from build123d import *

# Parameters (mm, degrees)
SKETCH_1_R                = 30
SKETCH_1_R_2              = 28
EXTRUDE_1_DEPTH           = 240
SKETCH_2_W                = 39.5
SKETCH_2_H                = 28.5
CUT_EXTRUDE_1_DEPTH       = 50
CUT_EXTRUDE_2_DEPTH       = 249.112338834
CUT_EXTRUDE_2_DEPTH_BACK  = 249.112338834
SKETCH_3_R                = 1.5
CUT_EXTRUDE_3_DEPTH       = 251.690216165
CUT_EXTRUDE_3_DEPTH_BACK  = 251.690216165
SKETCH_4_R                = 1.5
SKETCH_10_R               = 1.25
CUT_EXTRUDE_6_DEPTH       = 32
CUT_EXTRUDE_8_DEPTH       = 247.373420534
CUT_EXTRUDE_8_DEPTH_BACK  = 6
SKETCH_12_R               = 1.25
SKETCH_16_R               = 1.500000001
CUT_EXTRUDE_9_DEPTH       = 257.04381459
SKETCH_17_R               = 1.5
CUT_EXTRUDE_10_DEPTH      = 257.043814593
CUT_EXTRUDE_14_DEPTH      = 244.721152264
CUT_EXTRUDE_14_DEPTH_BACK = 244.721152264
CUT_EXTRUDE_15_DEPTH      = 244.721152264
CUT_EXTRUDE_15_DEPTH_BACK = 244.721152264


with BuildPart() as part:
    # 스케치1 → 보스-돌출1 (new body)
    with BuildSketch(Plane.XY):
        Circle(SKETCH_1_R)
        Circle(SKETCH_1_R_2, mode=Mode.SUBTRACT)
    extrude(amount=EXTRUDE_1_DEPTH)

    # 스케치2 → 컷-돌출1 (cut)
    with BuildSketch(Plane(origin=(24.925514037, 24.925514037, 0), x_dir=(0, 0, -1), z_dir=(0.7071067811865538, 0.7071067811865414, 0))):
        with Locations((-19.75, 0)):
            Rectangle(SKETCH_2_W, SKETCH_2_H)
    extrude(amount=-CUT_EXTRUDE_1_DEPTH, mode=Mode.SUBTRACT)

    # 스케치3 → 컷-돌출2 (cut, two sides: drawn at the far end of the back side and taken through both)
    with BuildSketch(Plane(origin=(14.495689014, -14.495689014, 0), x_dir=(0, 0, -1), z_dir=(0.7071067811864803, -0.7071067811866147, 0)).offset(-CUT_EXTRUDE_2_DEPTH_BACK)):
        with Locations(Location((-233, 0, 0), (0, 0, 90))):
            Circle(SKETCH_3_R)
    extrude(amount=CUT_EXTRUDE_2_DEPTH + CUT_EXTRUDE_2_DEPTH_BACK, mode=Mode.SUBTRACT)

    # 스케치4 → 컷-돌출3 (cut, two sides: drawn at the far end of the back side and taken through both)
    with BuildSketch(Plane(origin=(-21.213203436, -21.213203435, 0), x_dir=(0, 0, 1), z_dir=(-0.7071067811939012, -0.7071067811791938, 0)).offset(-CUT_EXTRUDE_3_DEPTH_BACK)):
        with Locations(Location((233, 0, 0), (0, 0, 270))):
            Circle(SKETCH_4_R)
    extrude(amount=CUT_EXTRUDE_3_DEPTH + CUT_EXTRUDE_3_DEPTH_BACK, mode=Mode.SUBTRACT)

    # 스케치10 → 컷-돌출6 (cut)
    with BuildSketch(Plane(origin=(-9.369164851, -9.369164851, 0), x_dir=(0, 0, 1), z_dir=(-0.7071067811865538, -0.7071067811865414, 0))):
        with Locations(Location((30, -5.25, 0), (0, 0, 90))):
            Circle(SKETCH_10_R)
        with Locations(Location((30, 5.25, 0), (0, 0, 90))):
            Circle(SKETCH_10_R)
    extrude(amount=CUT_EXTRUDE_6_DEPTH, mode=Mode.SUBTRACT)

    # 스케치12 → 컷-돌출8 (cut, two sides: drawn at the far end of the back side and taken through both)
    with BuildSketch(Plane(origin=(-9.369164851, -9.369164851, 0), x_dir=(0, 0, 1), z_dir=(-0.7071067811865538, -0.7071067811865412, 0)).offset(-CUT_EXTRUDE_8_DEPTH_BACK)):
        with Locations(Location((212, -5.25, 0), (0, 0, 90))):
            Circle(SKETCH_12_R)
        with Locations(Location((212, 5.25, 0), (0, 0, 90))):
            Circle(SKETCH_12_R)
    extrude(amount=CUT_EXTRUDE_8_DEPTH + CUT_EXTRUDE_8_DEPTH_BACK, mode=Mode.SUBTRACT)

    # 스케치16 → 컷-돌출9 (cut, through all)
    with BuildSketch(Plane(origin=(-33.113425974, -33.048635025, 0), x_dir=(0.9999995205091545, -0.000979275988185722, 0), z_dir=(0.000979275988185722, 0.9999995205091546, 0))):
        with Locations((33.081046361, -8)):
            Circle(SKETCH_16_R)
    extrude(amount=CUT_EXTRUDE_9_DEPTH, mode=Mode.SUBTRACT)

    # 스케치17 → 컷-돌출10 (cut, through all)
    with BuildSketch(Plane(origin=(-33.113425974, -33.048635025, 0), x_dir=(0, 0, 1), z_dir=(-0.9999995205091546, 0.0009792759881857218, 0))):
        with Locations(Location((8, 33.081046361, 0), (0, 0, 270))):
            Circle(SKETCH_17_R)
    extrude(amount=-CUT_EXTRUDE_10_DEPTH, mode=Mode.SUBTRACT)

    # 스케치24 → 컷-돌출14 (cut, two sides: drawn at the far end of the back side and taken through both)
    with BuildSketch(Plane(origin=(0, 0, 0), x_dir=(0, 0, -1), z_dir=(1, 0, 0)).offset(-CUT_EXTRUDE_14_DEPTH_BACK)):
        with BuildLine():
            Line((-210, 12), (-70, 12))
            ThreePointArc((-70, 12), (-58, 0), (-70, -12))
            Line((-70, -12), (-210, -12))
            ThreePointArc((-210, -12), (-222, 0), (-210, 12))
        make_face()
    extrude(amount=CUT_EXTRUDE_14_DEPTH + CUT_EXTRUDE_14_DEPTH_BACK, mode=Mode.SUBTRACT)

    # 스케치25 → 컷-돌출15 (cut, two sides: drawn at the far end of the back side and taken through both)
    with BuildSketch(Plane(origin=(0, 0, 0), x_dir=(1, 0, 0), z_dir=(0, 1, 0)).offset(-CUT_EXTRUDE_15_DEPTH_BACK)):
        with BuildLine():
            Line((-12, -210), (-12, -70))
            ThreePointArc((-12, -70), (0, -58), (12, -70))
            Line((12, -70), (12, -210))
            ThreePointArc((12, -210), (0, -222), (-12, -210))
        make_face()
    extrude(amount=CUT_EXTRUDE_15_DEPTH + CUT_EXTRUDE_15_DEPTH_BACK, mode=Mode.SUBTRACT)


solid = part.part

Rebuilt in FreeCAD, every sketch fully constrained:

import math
import FreeCAD as App
import Part
import Sketcher
Q = App.Units.Quantity

doc = App.newDocument("Part")
params = doc.addObject("Spreadsheet::Sheet", "Params")
for row, (alias, value) in enumerate([
    ("sketch1_diameter", "60 mm"),
    ("sketch1_diameter2", "56 mm"),
    ("pad1_length", "240 mm"),
    ("sketch2_width", "39.5 mm"),
    ("sketch2_height", "28.5 mm"),
    ("pocket1_length", "50 mm"),
    ("sketch3_diameter", "3 mm"),
    ("sketch4_diameter", "3 mm"),
    ("sketch5_diameter", "2.5 mm"),
    ("pocket4_length", "32 mm"),
    ("sketch6_diameter", "2.5 mm"),
    ("pocket5_length", "247.373421 mm"),
    ("pocket5_length2", "6 mm"),
    ("sketch7_diameter", "3 mm"),
    ("sketch8_diameter", "3 mm"),
    ("sketch9_radius", "12 mm"),
    ("sketch9_height", "140 mm"),
    ("sketch10_radius", "12 mm"),
    ("sketch10_height", "140 mm"),
], start=1):
    params.set(f"A{row}", alias)
    params.set(f"B{row}", "=" + value)
    params.setAlias(f"B{row}", alias)

body = doc.addObject("PartDesign::Body", "Body")

sketch1 = body.newObject("Sketcher::SketchObject", "Sketch")
sketch1.AttachmentSupport = (doc.getObject("XY_Plane"), [""])
sketch1.MapMode = "FlatFace"
sketch1.addGeometry(Part.Circle(App.Vector(0, 0, 0), App.Vector(0, 0, 1), 30), False)
sketch1.addGeometry(Part.Circle(App.Vector(0, 0, 0), App.Vector(0, 0, 1), 28), False)
sketch1.addConstraint(Sketcher.Constraint("Coincident", 0, 3, -1, 1))
sketch1.addConstraint(Sketcher.Constraint("Coincident", 1, 3, -1, 1))
sketch1.addConstraint(Sketcher.Constraint("Diameter", 0, Q("60 mm")))
sketch1.addConstraint(Sketcher.Constraint("Diameter", 1, Q("56 mm")))
sketch1.setExpression("Constraints[2]", "Params.sketch1_diameter")
sketch1.setExpression("Constraints[3]", "Params.sketch1_diameter2")
pad1 = body.newObject("PartDesign::Pad", "Pad")
pad1.Profile = sketch1
pad1.setExpression("Length", "Params.pad1_length")

sketch2 = body.newObject("Sketcher::SketchObject", "Sketch001")
sketch2.Placement = App.Placement(App.Vector(24.925514, 24.925514, 0), App.Rotation(App.Vector(0, 0, -1), App.Vector(-0.707106781, 0.707106781, 0), App.Vector(0.707106781, 0.707106781, 0), "ZXY"))
sketch2.addGeometry(Part.LineSegment(App.Vector(-40, 14, 0), App.Vector(-40, -14, 0)), False)
sketch2.addGeometry(Part.LineSegment(App.Vector(-40, -14, 0), App.Vector(0, -14, 0)), False)
sketch2.addGeometry(Part.LineSegment(App.Vector(0, -14, 0), App.Vector(0, 14, 0)), False)
sketch2.addGeometry(Part.LineSegment(App.Vector(0, 14, 0), App.Vector(-40, 14, 0)), False)
sketch2.addConstraint(Sketcher.Constraint("Coincident", 0, 2, 1, 1))
sketch2.addConstraint(Sketcher.Constraint("Coincident", 1, 2, 2, 1))
sketch2.addConstraint(Sketcher.Constraint("Coincident", 2, 2, 3, 1))
sketch2.addConstraint(Sketcher.Constraint("Coincident", 3, 2, 0, 1))
sketch2.addConstraint(Sketcher.Constraint("Vertical", 0))
sketch2.addConstraint(Sketcher.Constraint("Horizontal", 1))
sketch2.addConstraint(Sketcher.Constraint("Vertical", 2))
sketch2.addConstraint(Sketcher.Constraint("Horizontal", 3))
sketch2.addConstraint(Sketcher.Constraint("Symmetric", 1, 2, 2, 2, -1, 1))
sketch2.addConstraint(Sketcher.Constraint("DistanceX", 1, 1, 1, 2, Q("39.5 mm")))
sketch2.addConstraint(Sketcher.Constraint("DistanceY", 0, 2, 0, 1, Q("28.5 mm")))
sketch2.setExpression("Constraints[9]", "Params.sketch2_width")
sketch2.setExpression("Constraints[10]", "Params.sketch2_height")
pocket1 = body.newObject("PartDesign::Pocket", "Pocket")
pocket1.Profile = sketch2
pocket1.setExpression("Length", "Params.pocket1_length")

sketch3 = body.newObject("Sketcher::SketchObject", "Sketch002")
sketch3.Placement = App.Placement(App.Vector(14.495689, -14.495689, 0), App.Rotation(App.Vector(0, 0, -1), App.Vector(0.707106781, 0.707106781, 0), App.Vector(0.707106781, -0.707106781, 0), "ZXY"))
sketch3.addGeometry(Part.Circle(App.Vector(-233, 0, 0), App.Vector(0, 0, 1), 1.5), False)
sketch3.addConstraint(Sketcher.Constraint("PointOnObject", 0, 3, -1))
sketch3.addConstraint(Sketcher.Constraint("Diameter", 0, Q("3 mm")))
sketch3.addConstraint(Sketcher.Constraint("DistanceX", 0, 3, -1, 1, Q("233 mm")))
sketch3.setExpression("Constraints[1]", "Params.sketch3_diameter")
pocket2 = body.newObject("PartDesign::Pocket", "Pocket001")
pocket2.Profile = sketch3
pocket2.Type = "ThroughAll"
pocket2.Midplane = True

sketch4 = body.newObject("Sketcher::SketchObject", "Sketch003")
sketch4.Placement = App.Placement(App.Vector(-21.213203, -21.213203, 0), App.Rotation(App.Vector(0, 0, 1), App.Vector(-0.707106781, 0.707106781, 0), App.Vector(-0.707106781, -0.707106781, 0), "ZXY"))
sketch4.addGeometry(Part.Circle(App.Vector(233, 0, 0), App.Vector(0, 0, 1), 1.5), False)
sketch4.addConstraint(Sketcher.Constraint("PointOnObject", 0, 3, -1))
sketch4.addConstraint(Sketcher.Constraint("Diameter", 0, Q("3 mm")))
sketch4.addConstraint(Sketcher.Constraint("DistanceX", -1, 1, 0, 3, Q("233 mm")))
sketch4.setExpression("Constraints[1]", "Params.sketch4_diameter")
pocket3 = body.newObject("PartDesign::Pocket", "Pocket002")
pocket3.Profile = sketch4
pocket3.Type = "ThroughAll"
pocket3.Midplane = True

sketch5 = body.newObject("Sketcher::SketchObject", "Sketch004")
sketch5.Placement = App.Placement(App.Vector(-9.369165, -9.369165, 0), App.Rotation(App.Vector(0, 0, 1), App.Vector(-0.707106781, 0.707106781, 0), App.Vector(-0.707106781, -0.707106781, 0), "ZXY"))
sketch5.addGeometry(Part.Circle(App.Vector(30, -5.2, 0), App.Vector(0, 0, 1), 1.2), False)
sketch5.addGeometry(Part.Circle(App.Vector(30, 5.2, 0), App.Vector(0, 0, 1), 1.2), False)
sketch5.addConstraint(Sketcher.Constraint("Equal", 0, 1))
sketch5.addConstraint(Sketcher.Constraint("Symmetric", 0, 3, 1, 3, -1))
sketch5.addConstraint(Sketcher.Constraint("Diameter", 0, Q("2.5 mm")))
sketch5.addConstraint(Sketcher.Constraint("DistanceX", -1, 1, 0, 3, Q("30 mm")))
sketch5.addConstraint(Sketcher.Constraint("DistanceY", 0, 3, 1, 3, Q("10.5 mm")))
sketch5.setExpression("Constraints[2]", "Params.sketch5_diameter")
pocket4 = body.newObject("PartDesign::Pocket", "Pocket003")
pocket4.Profile = sketch5
pocket4.setExpression("Length", "Params.pocket4_length")
pocket4.Reversed = True

sketch6 = body.newObject("Sketcher::SketchObject", "Sketch005")
sketch6.Placement = App.Placement(App.Vector(-9.369165, -9.369165, 0), App.Rotation(App.Vector(0, 0, 1), App.Vector(-0.707106781, 0.707106781, 0), App.Vector(-0.707106781, -0.707106781, 0), "ZXY"))
sketch6.addGeometry(Part.Circle(App.Vector(212, -5.2, 0), App.Vector(0, 0, 1), 1.2), False)
sketch6.addGeometry(Part.Circle(App.Vector(212, 5.2, 0), App.Vector(0, 0, 1), 1.2), False)
sketch6.addConstraint(Sketcher.Constraint("Equal", 0, 1))
sketch6.addConstraint(Sketcher.Constraint("Symmetric", 0, 3, 1, 3, -1))
sketch6.addConstraint(Sketcher.Constraint("Diameter", 0, Q("2.5 mm")))
sketch6.addConstraint(Sketcher.Constraint("DistanceX", -1, 1, 0, 3, Q("212 mm")))
sketch6.addConstraint(Sketcher.Constraint("DistanceY", 0, 3, 1, 3, Q("10.5 mm")))
sketch6.setExpression("Constraints[2]", "Params.sketch6_diameter")
pocket5 = body.newObject("PartDesign::Pocket", "Pocket004")
pocket5.Profile = sketch6
pocket5.Type = "TwoLengths"
pocket5.setExpression("Length", "Params.pocket5_length")
pocket5.setExpression("Length2", "Params.pocket5_length2")
pocket5.Reversed = True

sketch7 = body.newObject("Sketcher::SketchObject", "Sketch006")
sketch7.Placement = App.Placement(App.Vector(-33.113426, -33.048635, 0), App.Rotation(App.Vector(0.999999521, -0.000979276, 0), App.Vector(0, 0, -1.000000001), App.Vector(0.000979276, 0.999999521, 0), "ZXY"))
sketch7.addGeometry(Part.Circle(App.Vector(33.1, -8, 0), App.Vector(0, 0, 1), 1.5), False)
sketch7.addConstraint(Sketcher.Constraint("Diameter", 0, Q("3 mm")))
sketch7.addConstraint(Sketcher.Constraint("DistanceY", 0, 3, -1, 1, Q("8 mm")))
sketch7.addConstraint(Sketcher.Constraint("DistanceX", -1, 1, 0, 3, Q("33.081046 mm")))
sketch7.setExpression("Constraints[0]", "Params.sketch7_diameter")
pocket6 = body.newObject("PartDesign::Pocket", "Pocket005")
pocket6.Profile = sketch7
pocket6.Type = "ThroughAll"
pocket6.Reversed = True

sketch8 = body.newObject("Sketcher::SketchObject", "Sketch007")
sketch8.Placement = App.Placement(App.Vector(-33.113426, -33.048635, 0), App.Rotation(App.Vector(0, 0, 1), App.Vector(0.000979276, 0.999999521, 0), App.Vector(-0.999999521, 0.000979276, 0), "ZXY"))
sketch8.addGeometry(Part.Circle(App.Vector(8, 33.1, 0), App.Vector(0, 0, 1), 1.5), False)
sketch8.addConstraint(Sketcher.Constraint("Diameter", 0, Q("3 mm")))
sketch8.addConstraint(Sketcher.Constraint("DistanceX", -1, 1, 0, 3, Q("8 mm")))
sketch8.addConstraint(Sketcher.Constraint("DistanceY", -1, 1, 0, 3, Q("33.081046 mm")))
sketch8.setExpression("Constraints[0]", "Params.sketch8_diameter")
pocket7 = body.newObject("PartDesign::Pocket", "Pocket006")
pocket7.Profile = sketch8
pocket7.Type = "ThroughAll"

sketch9 = body.newObject("Sketcher::SketchObject", "Sketch008")
sketch9.AttachmentSupport = (doc.getObject("YZ_Plane"), [""])
sketch9.MapMode = "FlatFace"
sketch9.addGeometry(Part.LineSegment(App.Vector(12, 70, 0), App.Vector(12, 210, 0)), False)
sketch9.addGeometry(Part.ArcOfCircle(Part.Circle(App.Vector(0, 210, 0), App.Vector(0, 0, 1), 12), math.radians(0), math.radians(180)), False)
sketch9.addGeometry(Part.LineSegment(App.Vector(-12, 210, 0), App.Vector(-12, 70, 0)), False)
sketch9.addGeometry(Part.ArcOfCircle(Part.Circle(App.Vector(0, 70, 0), App.Vector(0, 0, 1), 12), math.radians(180), math.radians(360)), False)
sketch9.addConstraint(Sketcher.Constraint("Tangent", 0, 2, 1, 1))
sketch9.addConstraint(Sketcher.Constraint("Tangent", 1, 2, 2, 1))
sketch9.addConstraint(Sketcher.Constraint("Tangent", 2, 2, 3, 1))
sketch9.addConstraint(Sketcher.Constraint("Tangent", 3, 2, 0, 1))
sketch9.addConstraint(Sketcher.Constraint("Vertical", 0))
sketch9.addConstraint(Sketcher.Constraint("Vertical", 2))
sketch9.addConstraint(Sketcher.Constraint("PointOnObject", 1, 3, -2))
sketch9.addConstraint(Sketcher.Constraint("Radius", 1, Q("12 mm")))
sketch9.addConstraint(Sketcher.Constraint("DistanceY", 0, 1, 0, 2, Q("140 mm")))
sketch9.addConstraint(Sketcher.Constraint("DistanceY", -1, 1, 1, 3, Q("210 mm")))
sketch9.setExpression("Constraints[7]", "Params.sketch9_radius")
sketch9.setExpression("Constraints[8]", "Params.sketch9_height")
pocket8 = body.newObject("PartDesign::Pocket", "Pocket007")
pocket8.Profile = sketch9
pocket8.Type = "ThroughAll"
pocket8.Midplane = True

sketch10 = body.newObject("Sketcher::SketchObject", "Sketch009")
sketch10.AttachmentSupport = (doc.getObject("XZ_Plane"), [""])
sketch10.MapMode = "FlatFace"
sketch10.addGeometry(Part.LineSegment(App.Vector(-12, 70, 0), App.Vector(-12, 210, 0)), False)
sketch10.addGeometry(Part.ArcOfCircle(Part.Circle(App.Vector(0, 210, 0), App.Vector(0, 0, 1), 12), math.radians(0), math.radians(180)), False)
sketch10.addGeometry(Part.LineSegment(App.Vector(12, 210, 0), App.Vector(12, 70, 0)), False)
sketch10.addGeometry(Part.ArcOfCircle(Part.Circle(App.Vector(0, 70, 0), App.Vector(0, 0, 1), 12), math.radians(180), math.radians(360)), False)
sketch10.addConstraint(Sketcher.Constraint("Tangent", 0, 2, 1, 2))
sketch10.addConstraint(Sketcher.Constraint("Tangent", 1, 1, 2, 1))
sketch10.addConstraint(Sketcher.Constraint("Tangent", 2, 2, 3, 2))
sketch10.addConstraint(Sketcher.Constraint("Tangent", 3, 1, 0, 1))
sketch10.addConstraint(Sketcher.Constraint("Vertical", 0))
sketch10.addConstraint(Sketcher.Constraint("Vertical", 2))
sketch10.addConstraint(Sketcher.Constraint("PointOnObject", 1, 3, -2))
sketch10.addConstraint(Sketcher.Constraint("Radius", 1, Q("12 mm")))
sketch10.addConstraint(Sketcher.Constraint("DistanceY", 0, 1, 0, 2, Q("140 mm")))
sketch10.addConstraint(Sketcher.Constraint("DistanceY", -1, 1, 1, 3, Q("210 mm")))
sketch10.setExpression("Constraints[7]", "Params.sketch10_radius")
sketch10.setExpression("Constraints[8]", "Params.sketch10_height")
pocket9 = body.newObject("PartDesign::Pocket", "Pocket008")
pocket9.Profile = sketch10
pocket9.Type = "ThroughAll"
pocket9.Midplane = True

doc.recompute()
